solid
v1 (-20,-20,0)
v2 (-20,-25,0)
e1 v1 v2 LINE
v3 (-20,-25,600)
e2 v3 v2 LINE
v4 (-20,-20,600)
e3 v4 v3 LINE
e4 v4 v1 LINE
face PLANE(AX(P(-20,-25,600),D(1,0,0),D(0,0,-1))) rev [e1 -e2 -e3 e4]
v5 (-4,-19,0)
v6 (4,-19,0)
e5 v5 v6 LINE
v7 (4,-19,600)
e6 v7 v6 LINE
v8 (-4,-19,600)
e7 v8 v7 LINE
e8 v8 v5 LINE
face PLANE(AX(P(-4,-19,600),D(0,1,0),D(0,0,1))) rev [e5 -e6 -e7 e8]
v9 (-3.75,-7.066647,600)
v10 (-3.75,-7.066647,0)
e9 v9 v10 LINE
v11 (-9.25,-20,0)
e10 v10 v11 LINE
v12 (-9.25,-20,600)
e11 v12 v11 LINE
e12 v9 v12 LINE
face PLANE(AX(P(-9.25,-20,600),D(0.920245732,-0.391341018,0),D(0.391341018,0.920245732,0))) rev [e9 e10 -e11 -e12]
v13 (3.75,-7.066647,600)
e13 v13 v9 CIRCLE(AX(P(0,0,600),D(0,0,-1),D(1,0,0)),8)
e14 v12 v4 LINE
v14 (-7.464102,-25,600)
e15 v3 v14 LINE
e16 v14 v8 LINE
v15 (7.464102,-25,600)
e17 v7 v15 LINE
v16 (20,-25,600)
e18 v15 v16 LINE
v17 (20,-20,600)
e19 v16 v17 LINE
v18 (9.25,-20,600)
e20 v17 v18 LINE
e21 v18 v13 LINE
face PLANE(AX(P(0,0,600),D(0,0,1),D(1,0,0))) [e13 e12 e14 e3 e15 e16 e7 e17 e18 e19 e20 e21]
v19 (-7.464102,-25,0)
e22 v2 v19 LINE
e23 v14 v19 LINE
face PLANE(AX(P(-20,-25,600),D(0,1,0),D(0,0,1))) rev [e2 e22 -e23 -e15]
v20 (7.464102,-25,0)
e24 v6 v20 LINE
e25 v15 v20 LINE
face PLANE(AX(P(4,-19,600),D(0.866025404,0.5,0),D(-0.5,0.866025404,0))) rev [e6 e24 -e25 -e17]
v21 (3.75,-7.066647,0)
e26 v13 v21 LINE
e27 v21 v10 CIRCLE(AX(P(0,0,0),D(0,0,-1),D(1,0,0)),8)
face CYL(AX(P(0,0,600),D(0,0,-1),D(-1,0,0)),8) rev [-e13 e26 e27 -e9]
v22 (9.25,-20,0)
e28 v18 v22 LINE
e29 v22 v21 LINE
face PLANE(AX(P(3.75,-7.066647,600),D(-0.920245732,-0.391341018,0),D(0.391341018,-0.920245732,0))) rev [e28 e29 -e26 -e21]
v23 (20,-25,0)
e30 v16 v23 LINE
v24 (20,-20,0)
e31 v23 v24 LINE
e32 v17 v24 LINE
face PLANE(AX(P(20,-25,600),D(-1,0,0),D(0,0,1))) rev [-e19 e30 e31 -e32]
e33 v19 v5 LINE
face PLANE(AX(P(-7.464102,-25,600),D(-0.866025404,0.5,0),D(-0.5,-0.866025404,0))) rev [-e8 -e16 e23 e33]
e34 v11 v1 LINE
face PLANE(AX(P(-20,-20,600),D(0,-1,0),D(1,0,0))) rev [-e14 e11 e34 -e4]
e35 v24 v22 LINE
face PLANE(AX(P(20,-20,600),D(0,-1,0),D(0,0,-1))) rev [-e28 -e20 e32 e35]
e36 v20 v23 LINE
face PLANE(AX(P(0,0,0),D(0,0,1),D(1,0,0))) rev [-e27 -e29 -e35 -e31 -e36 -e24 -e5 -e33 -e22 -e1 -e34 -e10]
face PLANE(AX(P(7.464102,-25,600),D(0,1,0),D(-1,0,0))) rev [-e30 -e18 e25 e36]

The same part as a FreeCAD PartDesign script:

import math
import FreeCAD as App
import Part
import Sketcher
Q = App.Units.Quantity

doc = App.newDocument("Part")
params = doc.addObject("Spreadsheet::Sheet", "Params")
for row, (alias, value) in enumerate([
    ("sketch1_radius", "8 mm"),
    ("sketch1_width", "8 mm"),
    ("sketch1_height", "5 mm"),
    ("sketch1_width2", "10.75 mm"),
    ("pad1_length", "600 mm"),
], start=1):
    params.set(f"A{row}", alias)
    params.set(f"B{row}", "=" + value)
    params.setAlias(f"B{row}", alias)

body = doc.addObject("PartDesign::Body", "Body")

# Sketch on XY plane
sketch1 = doc.addObject("Sketcher::SketchObject", "Sketch")
body.addObject(sketch1)
sketch1.AttachmentSupport = (doc.XY_Plane, [""])
sketch1.MapMode = "FlatFace"
sketch1.addGeometry([
    Part.LineSegment(App.Vector(-20, -25, 0), App.Vector(-7, -25, 0)),  # 0
    Part.LineSegment(App.Vector(-7, -25, 0), App.Vector(-4, -19, 0)),  # 1
    Part.LineSegment(App.Vector(-4, -19, 0), App.Vector(4, -19, 0)),  # 2
    Part.LineSegment(App.Vector(4, -19, 0), App.Vector(7, -25, 0)),  # 3
    Part.LineSegment(App.Vector(7, -25, 0), App.Vector(20, -25, 0)),  # 4
    Part.LineSegment(App.Vector(20, -25, 0), App.Vector(20, -20, 0)),  # 5
    Part.LineSegment(App.Vector(20, -20, 0), App.Vector(9, -20, 0)),  # 6
    Part.LineSegment(App.Vector(9, -20, 0), App.Vector(4, -7, 0)),  # 7
    Part.ArcOfCircle(Part.Circle(App.Vector(0, 0, 0), App.Vector(0, 0, 1), 8), math.radians(-118), math.radians(-62)),  # 8
    Part.LineSegment(App.Vector(-4, -7, 0), App.Vector(-9, -20, 0)),  # 9
    Part.LineSegment(App.Vector(-9, -20, 0), App.Vector(-20, -20, 0)),  # 10
    Part.LineSegment(App.Vector(-20, -20, 0), App.Vector(-20, -25, 0)),  # 11
], False)
sketch1.addConstraint([
    Sketcher.Constraint("Coincident", 0, 2, 1, 1),
    Sketcher.Constraint("Coincident", 1, 2, 2, 1),
    Sketcher.Constraint("Coincident", 2, 2, 3, 1),
    Sketcher.Constraint("Coincident", 3, 2, 4, 1),
    Sketcher.Constraint("Coincident", 4, 2, 5, 1),
    Sketcher.Constraint("Coincident", 5, 2, 6, 1),
    Sketcher.Constraint("Coincident", 6, 2, 7, 1),
    Sketcher.Constraint("Coincident", 7, 2, 8, 2),
    Sketcher.Constraint("Coincident", 8, 1, 9, 1),
    Sketcher.Constraint("Coincident", 9, 2, 10, 1),
    Sketcher.Constraint("Coincident", 10, 2, 11, 1),
    Sketcher.Constraint("Coincident", 11, 2, 0, 1),
    Sketcher.Constraint("Horizontal", 0),
    Sketcher.Constraint("Horizontal", 2),
    Sketcher.Constraint("Horizontal", 4),
    Sketcher.Constraint("Vertical", 5),
    Sketcher.Constraint("Horizontal", 6),
    Sketcher.Constraint("Horizontal", 10),
    Sketcher.Constraint("Vertical", 11),
    Sketcher.Constraint("Coincident", 8, 3, -1, 1),
    Sketcher.Constraint("Symmetric", 0, 2, 3, 2, -2),
    Sketcher.Constraint("Symmetric", 6, 2, 9, 2, -2),
    Sketcher.Constraint("Horizontal", 7, 2, 8, 1),
    Sketcher.Constraint("Equal", 0, 4),
    Sketcher.Constraint("Equal", 1, 3),
    Sketcher.Constraint("Radius", 8, Q("8 mm")),
    Sketcher.Constraint("DistanceX", 2, 1, 2, 2, Q("8 mm")),
    Sketcher.Constraint("DistanceY", 5, 1, 5, 2, Q("5 mm")),
    Sketcher.Constraint("Angle", 1, Q("60 deg")),
    Sketcher.Constraint("DistanceY", 0, 2, -1, 1, Q("25 mm")),
    Sketcher.Constraint("DistanceY", 1, 2, -1, 1, Q("19 mm")),
    Sketcher.Constraint("DistanceX", -1, 1, 4, 2, Q("20 mm")),
    Sketcher.Constraint("DistanceX", 6, 2, 6, 1, Q("10.75 mm")),
    Sketcher.Constraint("DistanceX", 7, 2, 6, 2, Q("5.5 mm")),
])
sketch1.setExpression("Constraints[25]", "Params.sketch1_radius")
sketch1.setExpression("Constraints[26]", "Params.sketch1_width")
sketch1.setExpression("Constraints[27]", "Params.sketch1_height")
sketch1.setExpression("Constraints[32]", "Params.sketch1_width2")
pad1 = doc.addObject("PartDesign::Pad", "Pad")
body.addObject(pad1)
pad1.Profile = sketch1
pad1.setExpression("Length", "Params.pad1_length")

doc.recompute()
